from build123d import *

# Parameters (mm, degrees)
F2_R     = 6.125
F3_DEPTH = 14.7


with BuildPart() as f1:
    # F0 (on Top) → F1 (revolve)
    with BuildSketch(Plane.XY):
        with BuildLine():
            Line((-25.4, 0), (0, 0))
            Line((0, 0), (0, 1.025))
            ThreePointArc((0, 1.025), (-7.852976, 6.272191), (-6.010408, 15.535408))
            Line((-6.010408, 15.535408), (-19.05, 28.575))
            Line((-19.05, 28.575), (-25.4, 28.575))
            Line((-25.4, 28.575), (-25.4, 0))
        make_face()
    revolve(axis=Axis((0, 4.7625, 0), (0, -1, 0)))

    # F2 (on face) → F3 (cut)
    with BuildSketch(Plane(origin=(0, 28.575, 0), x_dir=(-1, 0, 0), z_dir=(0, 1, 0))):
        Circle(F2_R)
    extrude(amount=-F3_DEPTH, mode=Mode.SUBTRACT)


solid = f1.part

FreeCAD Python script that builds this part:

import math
import FreeCAD as App
import Part
import Sketcher
Q = App.Units.Quantity

doc = App.newDocument("Part")
params = doc.addObject("Spreadsheet::Sheet", "Params")
for row, (alias, value) in enumerate([
    ("sketch1_width", "1 in"),
    ("sketch1_width2", "0.25 in"),
    ("sketch1_height", "1.125 in"),
    ("revolution_angle", "360 deg"),
    ("pocket1_length", "14.7 mm"),
], start=1):
    params.set(f"A{row}", alias)
    params.set(f"B{row}", "=" + value)
    params.setAlias(f"B{row}", alias)

body = doc.addObject("PartDesign::Body", "Body")

# Sketch on XY plane
sketch1 = body.newObject("Sketcher::SketchObject", "Sketch")
sketch1.AttachmentSupport = (doc.getObject("XY_Plane"), [""])
sketch1.MapMode = "FlatFace"
sketch1.addGeometry([
    Part.LineSegment(App.Vector(-25.4, 0, 0), App.Vector(0, 0, 0)),  # 0
    Part.LineSegment(App.Vector(0, 0, 0), App.Vector(0, 1, 0)),  # 1
    Part.ArcOfCircle(Part.Circle(App.Vector(0, 9.5, 0), App.Vector(0, 0, 1), 8.5), math.radians(135), math.radians(270)),  # 2
    Part.LineSegment(App.Vector(-6, 15.5, 0), App.Vector(-19.1, 28.6, 0)),  # 3
    Part.LineSegment(App.Vector(-19.1, 28.6, 0), App.Vector(-25.4, 28.6, 0)),  # 4
    Part.LineSegment(App.Vector(-25.4, 28.6, 0), App.Vector(-25.4, 0, 0)),  # 5
], False)
sketch1.addConstraint([
    Sketcher.Constraint("Coincident", 0, 2, 1, 1),
    Sketcher.Constraint("Coincident", 1, 2, 2, 2),
    Sketcher.Constraint("Coincident", 2, 1, 3, 1),
    Sketcher.Constraint("Coincident", 3, 2, 4, 1),
    Sketcher.Constraint("Coincident", 4, 2, 5, 1),
    Sketcher.Constraint("Coincident", 5, 2, 0, 1),
    Sketcher.Constraint("Horizontal", 0),
    Sketcher.Constraint("Vertical", 1),
    Sketcher.Constraint("Horizontal", 4),
    Sketcher.Constraint("Vertical", 5),
    Sketcher.Constraint("Coincident", 0, 2, -1, 1),
    Sketcher.Constraint("PointOnObject", 2, 3, -2),
    Sketcher.Constraint("DistanceX", 0, 1, 0, 2, Q("1 in")),
    Sketcher.Constraint("Angle", 3, Q("135 deg")),
    Sketcher.Constraint("DistanceX", 4, 2, 4, 1, Q("0.25 in")),
    Sketcher.Constraint("DistanceY", 5, 2, 5, 1, Q("1.125 in")),
    Sketcher.Constraint("Radius", 2, 8.5),
    Sketcher.Constraint("DistanceY", 2, 3, 3, 2, Q("0.75 in")),
])
sketch1.setExpression("Constraints[12]", "Params.sketch1_width")
sketch1.setExpression("Constraints[14]", "Params.sketch1_width2")
sketch1.setExpression("Constraints[15]", "Params.sketch1_height")
revolution = body.newObject("PartDesign::Revolution", "Revolution")
revolution.Profile = sketch1
revolution.ReferenceAxis = (sketch1, ["V_Axis"])
revolution.setExpression("Angle", "Params.revolution_angle")

# Sketch on XZ plane
sketch2 = body.newObject("Sketcher::SketchObject", "Sketch001")
sketch2.AttachmentSupport = (doc.getObject("XZ_Plane"), [""])
sketch2.MapMode = "FlatFace"
sketch2.AttachmentOffset = App.Placement(App.Vector(0, 0, -1.125 * 25.4), App.Rotation())
sketch2.addGeometry(Part.Circle(App.Vector(0, 0, 0), App.Vector(0, 0, 1), 6), False)
sketch2.addConstraint([
    Sketcher.Constraint("Coincident", 0, 3, -1, 1),
    Sketcher.Constraint("Diameter", 0, 12.25),
])
pocket1 = body.newObject("PartDesign::Pocket", "Pocket")
pocket1.Profile = sketch2
pocket1.setExpression("Length", "Params.pocket1_length")
pocket1.Reversed = True

doc.recompute()
